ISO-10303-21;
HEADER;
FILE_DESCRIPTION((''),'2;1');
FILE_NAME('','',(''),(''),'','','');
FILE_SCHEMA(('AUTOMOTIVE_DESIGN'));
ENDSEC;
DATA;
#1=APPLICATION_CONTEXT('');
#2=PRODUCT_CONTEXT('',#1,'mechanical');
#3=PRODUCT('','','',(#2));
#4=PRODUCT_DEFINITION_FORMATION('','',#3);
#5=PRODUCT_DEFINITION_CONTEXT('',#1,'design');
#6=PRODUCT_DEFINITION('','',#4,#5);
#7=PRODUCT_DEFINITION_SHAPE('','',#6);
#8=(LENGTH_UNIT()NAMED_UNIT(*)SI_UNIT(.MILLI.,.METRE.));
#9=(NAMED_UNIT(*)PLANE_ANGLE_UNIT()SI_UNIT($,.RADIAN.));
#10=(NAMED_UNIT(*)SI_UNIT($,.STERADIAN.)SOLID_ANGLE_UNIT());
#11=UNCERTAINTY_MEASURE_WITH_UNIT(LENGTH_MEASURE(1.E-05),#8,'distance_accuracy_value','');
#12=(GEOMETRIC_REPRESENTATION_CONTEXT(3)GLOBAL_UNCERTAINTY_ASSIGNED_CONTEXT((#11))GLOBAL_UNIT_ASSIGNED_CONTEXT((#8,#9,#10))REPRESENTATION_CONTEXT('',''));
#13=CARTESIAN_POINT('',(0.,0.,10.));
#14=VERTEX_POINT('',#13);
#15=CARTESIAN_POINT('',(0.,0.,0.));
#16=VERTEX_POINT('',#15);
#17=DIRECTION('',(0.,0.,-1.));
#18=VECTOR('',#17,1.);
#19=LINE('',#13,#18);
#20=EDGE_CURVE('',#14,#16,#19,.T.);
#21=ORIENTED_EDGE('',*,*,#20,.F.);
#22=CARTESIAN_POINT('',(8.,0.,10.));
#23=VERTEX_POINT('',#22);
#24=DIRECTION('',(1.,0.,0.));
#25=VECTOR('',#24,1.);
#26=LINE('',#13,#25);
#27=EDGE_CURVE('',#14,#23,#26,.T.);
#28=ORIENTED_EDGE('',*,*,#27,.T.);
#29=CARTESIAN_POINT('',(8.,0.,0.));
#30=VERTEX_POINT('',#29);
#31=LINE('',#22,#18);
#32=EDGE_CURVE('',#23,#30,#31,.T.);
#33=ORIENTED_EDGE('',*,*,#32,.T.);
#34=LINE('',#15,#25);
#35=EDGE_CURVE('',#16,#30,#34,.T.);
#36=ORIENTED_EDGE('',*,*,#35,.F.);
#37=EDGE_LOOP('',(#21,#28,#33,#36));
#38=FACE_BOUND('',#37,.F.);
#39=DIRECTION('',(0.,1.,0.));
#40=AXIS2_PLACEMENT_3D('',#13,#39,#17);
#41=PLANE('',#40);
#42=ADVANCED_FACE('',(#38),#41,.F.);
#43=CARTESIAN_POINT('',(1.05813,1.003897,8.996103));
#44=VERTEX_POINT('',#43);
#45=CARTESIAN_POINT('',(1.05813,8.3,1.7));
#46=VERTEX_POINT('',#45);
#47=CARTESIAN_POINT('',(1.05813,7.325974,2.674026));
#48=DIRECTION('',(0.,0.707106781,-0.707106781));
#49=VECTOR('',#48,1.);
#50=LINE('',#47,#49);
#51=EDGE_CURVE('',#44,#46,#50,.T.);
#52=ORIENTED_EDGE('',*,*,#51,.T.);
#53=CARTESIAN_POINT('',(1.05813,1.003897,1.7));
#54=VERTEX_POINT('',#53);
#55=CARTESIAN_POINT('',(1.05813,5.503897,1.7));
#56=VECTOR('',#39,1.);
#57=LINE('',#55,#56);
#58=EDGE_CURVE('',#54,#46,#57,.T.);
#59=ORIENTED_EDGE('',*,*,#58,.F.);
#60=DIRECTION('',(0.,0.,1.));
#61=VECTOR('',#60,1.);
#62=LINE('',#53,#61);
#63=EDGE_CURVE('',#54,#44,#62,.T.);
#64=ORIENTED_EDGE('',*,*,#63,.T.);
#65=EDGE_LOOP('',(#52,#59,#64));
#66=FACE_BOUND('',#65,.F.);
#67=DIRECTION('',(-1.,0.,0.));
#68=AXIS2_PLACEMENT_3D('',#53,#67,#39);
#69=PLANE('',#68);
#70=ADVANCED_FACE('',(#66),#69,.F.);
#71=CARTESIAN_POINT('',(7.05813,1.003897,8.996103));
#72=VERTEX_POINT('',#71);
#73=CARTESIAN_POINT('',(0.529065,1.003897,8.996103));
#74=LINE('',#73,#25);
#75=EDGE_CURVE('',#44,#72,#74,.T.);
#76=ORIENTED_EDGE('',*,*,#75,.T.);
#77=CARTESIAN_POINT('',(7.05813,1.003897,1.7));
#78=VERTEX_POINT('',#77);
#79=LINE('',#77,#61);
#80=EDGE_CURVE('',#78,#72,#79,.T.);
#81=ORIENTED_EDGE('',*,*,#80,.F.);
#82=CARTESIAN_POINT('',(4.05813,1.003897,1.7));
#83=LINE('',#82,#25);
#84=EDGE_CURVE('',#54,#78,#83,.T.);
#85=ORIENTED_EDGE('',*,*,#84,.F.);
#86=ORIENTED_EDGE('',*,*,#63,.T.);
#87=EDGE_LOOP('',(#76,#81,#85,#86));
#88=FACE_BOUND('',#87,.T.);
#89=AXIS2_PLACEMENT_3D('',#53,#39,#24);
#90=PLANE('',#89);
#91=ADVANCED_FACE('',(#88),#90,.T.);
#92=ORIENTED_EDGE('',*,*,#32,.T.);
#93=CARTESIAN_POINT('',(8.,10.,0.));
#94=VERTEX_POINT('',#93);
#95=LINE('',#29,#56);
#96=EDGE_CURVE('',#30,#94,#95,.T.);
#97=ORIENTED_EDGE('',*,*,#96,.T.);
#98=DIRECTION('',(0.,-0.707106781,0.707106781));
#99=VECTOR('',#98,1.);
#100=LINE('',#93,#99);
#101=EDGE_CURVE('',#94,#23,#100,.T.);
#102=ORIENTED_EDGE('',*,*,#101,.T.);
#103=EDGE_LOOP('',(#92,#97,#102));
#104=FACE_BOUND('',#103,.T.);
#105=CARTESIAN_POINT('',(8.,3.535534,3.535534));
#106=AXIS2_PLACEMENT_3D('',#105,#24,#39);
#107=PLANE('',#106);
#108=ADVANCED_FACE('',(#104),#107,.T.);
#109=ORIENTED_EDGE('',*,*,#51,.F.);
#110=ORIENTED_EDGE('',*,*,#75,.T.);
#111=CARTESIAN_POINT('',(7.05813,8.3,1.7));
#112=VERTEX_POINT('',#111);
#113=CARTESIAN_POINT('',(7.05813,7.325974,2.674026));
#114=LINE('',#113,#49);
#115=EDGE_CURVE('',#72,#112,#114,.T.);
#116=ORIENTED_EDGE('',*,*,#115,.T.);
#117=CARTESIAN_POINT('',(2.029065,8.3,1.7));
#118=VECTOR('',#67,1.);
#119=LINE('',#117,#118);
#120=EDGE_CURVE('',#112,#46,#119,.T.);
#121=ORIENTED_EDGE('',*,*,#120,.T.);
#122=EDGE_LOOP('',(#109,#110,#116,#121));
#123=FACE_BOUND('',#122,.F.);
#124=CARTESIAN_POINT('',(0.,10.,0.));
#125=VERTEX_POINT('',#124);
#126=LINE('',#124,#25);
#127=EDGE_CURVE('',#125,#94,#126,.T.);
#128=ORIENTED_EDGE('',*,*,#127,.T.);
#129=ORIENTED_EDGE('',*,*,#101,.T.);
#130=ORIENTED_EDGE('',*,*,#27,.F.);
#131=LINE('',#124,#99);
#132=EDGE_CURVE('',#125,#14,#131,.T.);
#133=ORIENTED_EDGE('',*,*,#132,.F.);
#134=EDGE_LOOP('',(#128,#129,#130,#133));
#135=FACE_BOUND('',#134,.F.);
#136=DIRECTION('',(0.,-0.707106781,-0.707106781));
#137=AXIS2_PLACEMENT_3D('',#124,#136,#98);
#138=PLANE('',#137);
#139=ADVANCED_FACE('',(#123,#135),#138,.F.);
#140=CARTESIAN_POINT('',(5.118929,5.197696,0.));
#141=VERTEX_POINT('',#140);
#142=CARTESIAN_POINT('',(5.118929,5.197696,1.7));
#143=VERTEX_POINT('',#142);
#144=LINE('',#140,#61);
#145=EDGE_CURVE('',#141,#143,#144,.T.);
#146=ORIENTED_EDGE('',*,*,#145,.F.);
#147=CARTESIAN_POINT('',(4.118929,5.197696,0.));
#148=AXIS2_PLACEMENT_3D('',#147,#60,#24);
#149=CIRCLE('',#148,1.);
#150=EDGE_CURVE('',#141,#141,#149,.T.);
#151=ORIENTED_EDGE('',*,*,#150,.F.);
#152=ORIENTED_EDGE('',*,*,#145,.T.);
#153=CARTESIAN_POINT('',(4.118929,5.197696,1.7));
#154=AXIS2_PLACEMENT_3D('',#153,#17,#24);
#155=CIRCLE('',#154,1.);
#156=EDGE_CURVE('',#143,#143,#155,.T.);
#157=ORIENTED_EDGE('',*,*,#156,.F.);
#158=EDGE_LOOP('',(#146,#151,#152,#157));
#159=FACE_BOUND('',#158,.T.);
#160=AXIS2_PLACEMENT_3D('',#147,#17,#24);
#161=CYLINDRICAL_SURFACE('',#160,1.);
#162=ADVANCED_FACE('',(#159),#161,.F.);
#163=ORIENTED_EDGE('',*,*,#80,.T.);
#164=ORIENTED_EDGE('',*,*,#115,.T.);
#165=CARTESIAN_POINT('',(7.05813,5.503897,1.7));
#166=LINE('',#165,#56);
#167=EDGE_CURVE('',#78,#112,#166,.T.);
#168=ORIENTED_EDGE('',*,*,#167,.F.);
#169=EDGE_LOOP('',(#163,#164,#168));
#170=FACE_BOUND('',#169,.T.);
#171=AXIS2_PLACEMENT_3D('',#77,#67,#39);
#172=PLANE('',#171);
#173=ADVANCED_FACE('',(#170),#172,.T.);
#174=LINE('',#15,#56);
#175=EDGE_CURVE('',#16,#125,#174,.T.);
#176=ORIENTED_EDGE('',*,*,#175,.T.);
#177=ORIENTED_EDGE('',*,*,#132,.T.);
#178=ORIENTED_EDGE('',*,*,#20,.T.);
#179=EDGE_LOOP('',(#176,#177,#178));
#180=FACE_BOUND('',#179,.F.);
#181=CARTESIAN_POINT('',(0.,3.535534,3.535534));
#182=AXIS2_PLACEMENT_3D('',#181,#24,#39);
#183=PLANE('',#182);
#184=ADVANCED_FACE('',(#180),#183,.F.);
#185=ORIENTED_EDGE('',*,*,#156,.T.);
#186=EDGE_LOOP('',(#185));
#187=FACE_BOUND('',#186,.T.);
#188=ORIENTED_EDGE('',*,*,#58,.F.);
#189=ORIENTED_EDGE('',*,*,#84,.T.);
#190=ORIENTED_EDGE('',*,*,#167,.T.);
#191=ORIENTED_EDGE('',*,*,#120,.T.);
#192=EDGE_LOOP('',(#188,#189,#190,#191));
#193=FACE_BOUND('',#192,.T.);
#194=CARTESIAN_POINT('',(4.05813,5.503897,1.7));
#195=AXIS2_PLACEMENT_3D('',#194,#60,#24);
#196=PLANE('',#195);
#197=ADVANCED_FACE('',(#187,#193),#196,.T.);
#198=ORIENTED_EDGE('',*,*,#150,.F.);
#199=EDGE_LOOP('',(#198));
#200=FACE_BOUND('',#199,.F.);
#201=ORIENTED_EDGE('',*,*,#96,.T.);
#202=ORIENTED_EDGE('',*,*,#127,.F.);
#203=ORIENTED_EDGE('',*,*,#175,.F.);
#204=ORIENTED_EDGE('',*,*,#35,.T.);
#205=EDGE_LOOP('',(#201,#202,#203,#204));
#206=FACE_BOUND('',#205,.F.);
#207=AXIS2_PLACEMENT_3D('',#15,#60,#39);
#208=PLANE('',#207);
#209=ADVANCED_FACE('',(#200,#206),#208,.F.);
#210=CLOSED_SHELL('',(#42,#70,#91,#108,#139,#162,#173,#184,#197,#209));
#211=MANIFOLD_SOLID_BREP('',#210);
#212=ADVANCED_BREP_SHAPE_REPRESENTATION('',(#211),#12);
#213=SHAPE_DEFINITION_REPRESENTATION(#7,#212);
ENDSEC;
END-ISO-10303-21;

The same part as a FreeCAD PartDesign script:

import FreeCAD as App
import Part
import Sketcher
Q = App.Units.Quantity


def add_polygon(sketch, points):
    """Adds a closed chain of lines whose ends are joined by coincident constraints."""
    first, n = sketch.GeometryCount, len(points)
    for a, b in zip(points, points[1:] + points[:1]):
        sketch.addGeometry(Part.LineSegment(App.Vector(*a, 0), App.Vector(*b, 0)), False)
    for i in range(n):
        sketch.addConstraint(Sketcher.Constraint("Coincident", first + i, 2, first + (i + 1) % n, 1))

doc = App.newDocument("Part")
body = doc.addObject("PartDesign::Body", "Body")

sketch1 = body.newObject("Sketcher::SketchObject", "Sketch")
sketch1.AttachmentSupport = (doc.getObject("YZ_Plane"), [""])
sketch1.MapMode = "FlatFace"
add_polygon(sketch1, [(0, 10), (0, 0), (10, 0)])
sketch1.addConstraint([
    Sketcher.Constraint("Vertical", 0),
    Sketcher.Constraint("Horizontal", 1),
    Sketcher.Constraint("Coincident", 0, 2, -1, 1),
    Sketcher.Constraint("Equal", 1, 0),
    Sketcher.Constraint("DistanceX", 1, 1, 1, 2, Q("10 mm")),
])
pad1 = body.newObject("PartDesign::Pad", "Pad")
pad1.Profile = sketch1
pad1.Length = 8

sketch2 = body.newObject("Sketcher::SketchObject", "Sketch001")
sketch2.AttachmentSupport = (doc.getObject("XY_Plane"), [""])
sketch2.MapMode = "FlatFace"
sketch2.AttachmentOffset = App.Placement(App.Vector(0, 0, 1.7), App.Rotation())
add_polygon(sketch2, [(1, 10), (1, 1), (7, 1), (7, 10)])
sketch2.addConstraint([
    Sketcher.Constraint("Vertical", 0),
    Sketcher.Constraint("Horizontal", 1),
    Sketcher.Constraint("Vertical", 2),
    Sketcher.Constraint("Horizontal", 3),
    Sketcher.Constraint("DistanceX", 1, 1, 1, 2, Q("6 mm")),
    Sketcher.Constraint("DistanceY", 0, 2, 0, 1, Q("9 mm")),
    Sketcher.Constraint("DistanceX", -1, 1, 0, 2, Q("1.05813 mm")),
    Sketcher.Constraint("DistanceY", -1, 1, 0, 2, Q("1.003897 mm")),
])
pocket1 = body.newObject("PartDesign::Pocket", "Pocket")
pocket1.Profile = sketch2
pocket1.Length = 20.7
pocket1.Reversed = True

sketch3 = body.newObject("Sketcher::SketchObject", "Sketch002")
sketch3.AttachmentSupport = (doc.getObject("XY_Plane"), [""])
sketch3.MapMode = "FlatFace"
sketch3.addGeometry(Part.Circle(App.Vector(4.1, 5.2, 0), App.Vector(0, 0, 1), 1), False)
sketch3.addConstraint([
    Sketcher.Constraint("Diameter", 0, Q("2 mm")),
    Sketcher.Constraint("DistanceX", -1, 1, 0, 3, Q("4.118929 mm")),
    Sketcher.Constraint("DistanceY", -1, 1, 0, 3, Q("5.197696 mm")),
])
pocket2 = body.newObject("PartDesign::Pocket", "Pocket001")
pocket2.Profile = sketch3
pocket2.Length = 19.8
pocket2.Reversed = True

doc.recompute()
